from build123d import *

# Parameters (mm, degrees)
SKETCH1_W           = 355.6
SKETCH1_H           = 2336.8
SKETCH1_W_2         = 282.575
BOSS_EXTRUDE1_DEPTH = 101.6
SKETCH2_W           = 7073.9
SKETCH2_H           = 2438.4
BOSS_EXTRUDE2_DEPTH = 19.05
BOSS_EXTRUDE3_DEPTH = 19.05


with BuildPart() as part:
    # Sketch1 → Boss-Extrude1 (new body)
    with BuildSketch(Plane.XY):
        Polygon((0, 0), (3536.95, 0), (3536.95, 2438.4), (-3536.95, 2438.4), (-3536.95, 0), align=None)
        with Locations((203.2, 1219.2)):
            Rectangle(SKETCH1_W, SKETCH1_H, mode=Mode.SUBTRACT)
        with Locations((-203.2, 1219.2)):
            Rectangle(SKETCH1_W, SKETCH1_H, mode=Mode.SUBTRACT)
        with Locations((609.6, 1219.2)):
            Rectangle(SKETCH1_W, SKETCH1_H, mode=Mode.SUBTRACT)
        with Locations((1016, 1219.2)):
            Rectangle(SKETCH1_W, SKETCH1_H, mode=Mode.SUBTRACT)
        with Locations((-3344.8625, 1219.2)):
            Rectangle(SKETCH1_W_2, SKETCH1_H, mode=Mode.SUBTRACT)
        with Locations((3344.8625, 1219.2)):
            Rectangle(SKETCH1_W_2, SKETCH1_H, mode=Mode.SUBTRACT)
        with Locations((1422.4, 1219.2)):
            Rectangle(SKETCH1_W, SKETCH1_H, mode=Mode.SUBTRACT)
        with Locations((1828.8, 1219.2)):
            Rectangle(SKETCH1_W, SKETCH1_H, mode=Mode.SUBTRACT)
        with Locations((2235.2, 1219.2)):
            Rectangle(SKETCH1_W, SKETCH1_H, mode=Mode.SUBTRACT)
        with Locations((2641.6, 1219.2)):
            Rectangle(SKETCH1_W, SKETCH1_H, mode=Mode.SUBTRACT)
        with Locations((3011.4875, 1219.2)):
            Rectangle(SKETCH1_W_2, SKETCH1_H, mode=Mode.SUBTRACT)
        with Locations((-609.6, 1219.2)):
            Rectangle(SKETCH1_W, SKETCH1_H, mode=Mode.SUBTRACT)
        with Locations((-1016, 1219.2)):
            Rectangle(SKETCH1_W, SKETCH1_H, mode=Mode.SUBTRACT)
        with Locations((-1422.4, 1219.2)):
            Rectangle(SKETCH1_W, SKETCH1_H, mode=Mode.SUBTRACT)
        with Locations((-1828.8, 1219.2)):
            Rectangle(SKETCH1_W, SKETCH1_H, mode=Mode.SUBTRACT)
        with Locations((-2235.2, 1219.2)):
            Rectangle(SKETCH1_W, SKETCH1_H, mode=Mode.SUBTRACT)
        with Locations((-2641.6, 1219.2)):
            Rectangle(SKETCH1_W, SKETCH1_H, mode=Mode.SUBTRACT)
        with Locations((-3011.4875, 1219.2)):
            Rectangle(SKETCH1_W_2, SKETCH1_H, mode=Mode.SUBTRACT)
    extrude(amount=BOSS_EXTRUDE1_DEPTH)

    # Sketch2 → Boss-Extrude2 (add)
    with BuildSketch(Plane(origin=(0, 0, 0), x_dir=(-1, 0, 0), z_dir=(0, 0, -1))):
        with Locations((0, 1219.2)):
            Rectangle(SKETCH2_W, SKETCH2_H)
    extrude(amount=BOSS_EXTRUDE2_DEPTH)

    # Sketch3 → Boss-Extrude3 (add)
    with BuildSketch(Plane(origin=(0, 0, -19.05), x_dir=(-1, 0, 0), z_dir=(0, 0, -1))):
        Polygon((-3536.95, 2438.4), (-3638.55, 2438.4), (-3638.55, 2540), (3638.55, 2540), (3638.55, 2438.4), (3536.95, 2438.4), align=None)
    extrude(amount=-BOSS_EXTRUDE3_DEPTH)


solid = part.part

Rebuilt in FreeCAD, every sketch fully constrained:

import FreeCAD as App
import Part
import Sketcher
Q = App.Units.Quantity


def add_polygon(sketch, points):
    """Adds a closed chain of lines whose ends are joined by coincident constraints."""
    first, n = sketch.GeometryCount, len(points)
    for a, b in zip(points, points[1:] + points[:1]):
        sketch.addGeometry(Part.LineSegment(App.Vector(*a, 0), App.Vector(*b, 0)), False)
    for i in range(n):
        sketch.addConstraint(Sketcher.Constraint("Coincident", first + i, 2, first + (i + 1) % n, 1))

doc = App.newDocument("Part")
params = doc.addObject("Spreadsheet::Sheet", "Params")
for row, (alias, value) in enumerate([
    ("sketch1_width", "14 in"),
    ("sketch1_height", "96 in"),
    ("sketch1_height2", "92 in"),
    ("sketch1_width2", "278.5 in"),
    ("sketch1_width3", "11.125 in"),
    ("pad1_length", "4 in"),
    ("sketch2_height", "96 in"),
    ("sketch2_width", "278.5 in"),
    ("pad2_length", "0.75 in"),
    ("sketch3_height", "4 in"),
    ("sketch3_width", "286.5 in"),
    ("pad3_length", "0.75 in"),
], start=1):
    params.set(f"A{row}", alias)
    params.set(f"B{row}", "=" + value)
    params.setAlias(f"B{row}", alias)

body = doc.addObject("PartDesign::Body", "Body")

# Sketch on XY plane
sketch1 = body.newObject("Sketcher::SketchObject", "Sketch")
sketch1.AttachmentSupport = (doc.getObject("XY_Plane"), [""])
sketch1.MapMode = "FlatFace"
add_polygon(sketch1, [(3537, 0), (3537, 2438), (-3537, 2438), (-3537, 0)])  # lines 0-3
add_polygon(sketch1, [(-3204, 51), (-3486, 51), (-3486, 2388), (-3204, 2388)])  # lines 4-7
add_polygon(sketch1, [(-2870, 51), (-3153, 51), (-3153, 2388), (-2870, 2388)])  # lines 8-11
add_polygon(sketch1, [(-2464, 51), (-2819, 51), (-2819, 2388), (-2464, 2388)])  # lines 12-15
add_polygon(sketch1, [(-2057, 51), (-2413, 51), (-2413, 2388), (-2057, 2388)])  # lines 16-19
add_polygon(sketch1, [(-1651, 51), (-2007, 51), (-2007, 2388), (-1651, 2388)])  # lines 20-23
add_polygon(sketch1, [(-1245, 51), (-1600, 51), (-1600, 2388), (-1245, 2388)])  # lines 24-27
add_polygon(sketch1, [(-838, 51), (-1194, 51), (-1194, 2388), (-838, 2388)])  # lines 28-31
add_polygon(sketch1, [(-432, 51), (-787, 51), (-787, 2388), (-432, 2388)])  # lines 32-35
add_polygon(sketch1, [(-25, 51), (-381, 51), (-381, 2388), (-25, 2388)])  # lines 36-39
add_polygon(sketch1, [(381, 51), (25, 51), (25, 2388), (381, 2388)])  # lines 40-43
add_polygon(sketch1, [(787, 51), (432, 51), (432, 2388), (787, 2388)])  # lines 44-47
add_polygon(sketch1, [(1194, 51), (838, 51), (838, 2388), (1194, 2388)])  # lines 48-51
add_polygon(sketch1, [(1600, 51), (1245, 51), (1245, 2388), (1600, 2388)])  # lines 52-55
add_polygon(sketch1, [(2007, 51), (1651, 51), (1651, 2388), (2007, 2388)])  # lines 56-59
add_polygon(sketch1, [(2413, 51), (2057, 51), (2057, 2388), (2413, 2388)])  # lines 60-63
add_polygon(sketch1, [(2819, 51), (2464, 51), (2464, 2388), (2819, 2388)])  # lines 64-67
add_polygon(sketch1, [(3153, 51), (2870, 51), (2870, 2388), (3153, 2388)])  # lines 68-71
add_polygon(sketch1, [(3486, 51), (3204, 51), (3204, 2388), (3486, 2388)])  # lines 72-75
sketch1.addConstraint([
    Sketcher.Constraint("Vertical", 0),
    Sketcher.Constraint("Horizontal", 1),
    Sketcher.Constraint("Vertical", 2),
    Sketcher.Constraint("Horizontal", 3),
    Sketcher.Constraint("Horizontal", 4),
    Sketcher.Constraint("Vertical", 5),
    Sketcher.Constraint("Horizontal", 6),
    Sketcher.Constraint("Vertical", 7),
    Sketcher.Constraint("Horizontal", 8),
    Sketcher.Constraint("Vertical", 9),
    Sketcher.Constraint("Horizontal", 10),
    Sketcher.Constraint("Vertical", 11),
    Sketcher.Constraint("Horizontal", 12),
    Sketcher.Constraint("Vertical", 13),
    Sketcher.Constraint("Horizontal", 14),
    Sketcher.Constraint("Vertical", 15),
    Sketcher.Constraint("Horizontal", 16),
    Sketcher.Constraint("Vertical", 17),
    Sketcher.Constraint("Horizontal", 18),
    Sketcher.Constraint("Vertical", 19),
    Sketcher.Constraint("Horizontal", 20),
    Sketcher.Constraint("Vertical", 21),
    Sketcher.Constraint("Horizontal", 22),
    Sketcher.Constraint("Vertical", 23),
    Sketcher.Constraint("Horizontal", 24),
    Sketcher.Constraint("Vertical", 25),
    Sketcher.Constraint("Horizontal", 26),
    Sketcher.Constraint("Vertical", 27),
    Sketcher.Constraint("Horizontal", 28),
    Sketcher.Constraint("Vertical", 29),
    Sketcher.Constraint("Horizontal", 30),
    Sketcher.Constraint("Vertical", 31),
    Sketcher.Constraint("Horizontal", 32),
    Sketcher.Constraint("Vertical", 33),
    Sketcher.Constraint("Horizontal", 34),
    Sketcher.Constraint("Vertical", 35),
    Sketcher.Constraint("Horizontal", 36),
    Sketcher.Constraint("Vertical", 37),
    Sketcher.Constraint("Horizontal", 38),
    Sketcher.Constraint("Vertical", 39),
    Sketcher.Constraint("Horizontal", 40),
    Sketcher.Constraint("Vertical", 41),
    Sketcher.Constraint("Horizontal", 42),
    Sketcher.Constraint("Vertical", 43),
    Sketcher.Constraint("Horizontal", 44),
    Sketcher.Constraint("Vertical", 45),
    Sketcher.Constraint("Horizontal", 46),
    Sketcher.Constraint("Vertical", 47),
    Sketcher.Constraint("Horizontal", 48),
    Sketcher.Constraint("Vertical", 49),
    Sketcher.Constraint("Horizontal", 50),
    Sketcher.Constraint("Vertical", 51),
    Sketcher.Constraint("Horizontal", 52),
    Sketcher.Constraint("Vertical", 53),
    Sketcher.Constraint("Horizontal", 54),
    Sketcher.Constraint("Vertical", 55),
    Sketcher.Constraint("Horizontal", 56),
    Sketcher.Constraint("Vertical", 57),
    Sketcher.Constraint("Horizontal", 58),
    Sketcher.Constraint("Vertical", 59),
    Sketcher.Constraint("Horizontal", 60),
    Sketcher.Constraint("Vertical", 61),
    Sketcher.Constraint("Horizontal", 62),
    Sketcher.Constraint("Vertical", 63),
    Sketcher.Constraint("Horizontal", 64),
    Sketcher.Constraint("Vertical", 65),
    Sketcher.Constraint("Horizontal", 66),
    Sketcher.Constraint("Vertical", 67),
    Sketcher.Constraint("Horizontal", 68),
    Sketcher.Constraint("Vertical", 69),
    Sketcher.Constraint("Horizontal", 70),
    Sketcher.Constraint("Vertical", 71),
    Sketcher.Constraint("Horizontal", 72),
    Sketcher.Constraint("Vertical", 73),
    Sketcher.Constraint("Horizontal", 74),
    Sketcher.Constraint("Vertical", 75),
    Sketcher.Constraint("Symmetric", 2, 2, 3, 2, -1, 1),
    Sketcher.Constraint("Symmetric", 39, 2, 40, 2, -2),
    Sketcher.Constraint("Symmetric", 37, 2, 42, 2, -2),
    Sketcher.Constraint("Symmetric", 35, 2, 44, 2, -2),
    Sketcher.Constraint("Symmetric", 33, 2, 46, 2, -2),
    Sketcher.Constraint("Symmetric", 31, 2, 48, 2, -2),
    Sketcher.Constraint("Symmetric", 29, 2, 50, 2, -2),
    Sketcher.Constraint("Symmetric", 27, 2, 52, 2, -2),
    Sketcher.Constraint("Symmetric", 25, 2, 54, 2, -2),
    Sketcher.Constraint("Symmetric", 23, 2, 56, 2, -2),
    Sketcher.Constraint("Symmetric", 21, 2, 58, 2, -2),
    Sketcher.Constraint("Symmetric", 19, 2, 60, 2, -2),
    Sketcher.Constraint("Symmetric", 17, 2, 62, 2, -2),
    Sketcher.Constraint("Symmetric", 15, 2, 64, 2, -2),
    Sketcher.Constraint("Symmetric", 13, 2, 66, 2, -2),
    Sketcher.Constraint("Symmetric", 11, 2, 68, 2, -2),
    Sketcher.Constraint("Symmetric", 9, 2, 70, 2, -2),
    Sketcher.Constraint("Symmetric", 7, 2, 72, 2, -2),
    Sketcher.Constraint("Symmetric", 5, 2, 74, 2, -2),
    Sketcher.Constraint("Horizontal", 7, 2, 8, 2),
    Sketcher.Constraint("Horizontal", 6, 2, 9, 2),
    Sketcher.Constraint("Horizontal", 11, 2, 12, 2),
    Sketcher.Constraint("Horizontal", 10, 2, 13, 2),
    Sketcher.Constraint("Horizontal", 15, 2, 16, 2),
    Sketcher.Constraint("Horizontal", 14, 2, 17, 2),
    Sketcher.Constraint("Horizontal", 19, 2, 20, 2),
    Sketcher.Constraint("Horizontal", 18, 2, 21, 2),
    Sketcher.Constraint("Horizontal", 23, 2, 24, 2),
    Sketcher.Constraint("Horizontal", 22, 2, 25, 2),
    Sketcher.Constraint("Horizontal", 27, 2, 28, 2),
    Sketcher.Constraint("Horizontal", 26, 2, 29, 2),
    Sketcher.Constraint("Horizontal", 31, 2, 32, 2),
    Sketcher.Constraint("Horizontal", 30, 2, 33, 2),
    Sketcher.Constraint("Horizontal", 35, 2, 36, 2),
    Sketcher.Constraint("Horizontal", 34, 2, 37, 2),
    Sketcher.Constraint("Equal", 6, 8),
    Sketcher.Constraint("Equal", 14, 16),
    Sketcher.Constraint("Equal", 18, 20),
    Sketcher.Constraint("Equal", 22, 24),
    Sketcher.Constraint("Equal", 26, 28),
    Sketcher.Constraint("Equal", 30, 32),
    Sketcher.Constraint("Equal", 34, 36),
    Sketcher.Constraint("DistanceX", 12, 2, 12, 1, Q("14 in")),
    Sketcher.Constraint("DistanceY", 0, 1, 0, 2, Q("96 in")),
    Sketcher.Constraint("DistanceY", 5, 1, 5, 2, Q("92 in")),
    Sketcher.Constraint("DistanceX", 1, 2, 1, 1, Q("278.5 in")),
    Sketcher.Constraint("DistanceY", -1, 1, 4, 2, Q("2 in")),
    Sketcher.Constraint("DistanceX", 10, 2, -1, 1, Q("113 in")),
    Sketcher.Constraint("DistanceX", 12, 2, -1, 1, Q("111 in")),
    Sketcher.Constraint("DistanceX", 16, 2, -1, 1, Q("95 in")),
    Sketcher.Constraint("DistanceX", 20, 2, -1, 1, Q("79 in")),
    Sketcher.Constraint("DistanceX", 24, 2, -1, 1, Q("63 in")),
    Sketcher.Constraint("DistanceX", 28, 2, -1, 1, Q("47 in")),
    Sketcher.Constraint("DistanceX", 32, 2, -1, 1, Q("31 in")),
    Sketcher.Constraint("DistanceX", 36, 2, -1, 1, Q("15 in")),
    Sketcher.Constraint("DistanceX", 4, 2, 4, 1, Q("11.125 in")),
    Sketcher.Constraint("DistanceX", 4, 2, -1, 1, Q("137.25 in")),
])
sketch1.setExpression("Constraints[194]", "Params.sketch1_width")
sketch1.setExpression("Constraints[195]", "Params.sketch1_height")
sketch1.setExpression("Constraints[196]", "Params.sketch1_height2")
sketch1.setExpression("Constraints[197]", "Params.sketch1_width2")
sketch1.setExpression("Constraints[207]", "Params.sketch1_width3")
pad1 = body.newObject("PartDesign::Pad", "Pad")
pad1.Profile = sketch1
pad1.setExpression("Length", "Params.pad1_length")

# Sketch on XY plane
sketch2 = body.newObject("Sketcher::SketchObject", "Sketch001")
sketch2.AttachmentSupport = (doc.getObject("XY_Plane"), [""])
sketch2.MapMode = "FlatFace"
add_polygon(sketch2, [(3537, 2438), (3537, 0), (-3537, 0), (-3537, 2438)])  # lines 0-3
sketch2.addConstraint([
    Sketcher.Constraint("Vertical", 0),
    Sketcher.Constraint("Horizontal", 1),
    Sketcher.Constraint("Vertical", 2),
    Sketcher.Constraint("Horizontal", 3),
    Sketcher.Constraint("Symmetric", 0, 2, 1, 2, -1, 1),
    Sketcher.Constraint("DistanceY", 0, 2, 0, 1, Q("96 in")),
    Sketcher.Constraint("DistanceX", 1, 2, 1, 1, Q("278.5 in")),
])
sketch2.setExpression("Constraints[9]", "Params.sketch2_height")
sketch2.setExpression("Constraints[10]", "Params.sketch2_width")
pad2 = body.newObject("PartDesign::Pad", "Pad001")
pad2.Profile = sketch2
pad2.setExpression("Length", "Params.pad2_length")
pad2.Reversed = True

# Sketch on XY plane
sketch3 = body.newObject("Sketcher::SketchObject", "Sketch002")
sketch3.AttachmentSupport = (doc.getObject("XY_Plane"), [""])
sketch3.MapMode = "FlatFace"
sketch3.AttachmentOffset = App.Placement(App.Vector(0, 0, -0.75 * 25.4), App.Rotation())
add_polygon(sketch3, [(3639, 2438), (-3639, 2438), (-3639, 2540), (3639, 2540)])  # lines 0-3
sketch3.addConstraint([
    Sketcher.Constraint("Horizontal", 0),
    Sketcher.Constraint("Vertical", 1),
    Sketcher.Constraint("Horizontal", 2),
    Sketcher.Constraint("Vertical", 3),
    Sketcher.Constraint("DistanceY", 1, 1, 1, 2, Q("4 in")),
    Sketcher.Constraint("DistanceX", 0, 2, 0, 1, Q("286.5 in")),
    Sketcher.Constraint("DistanceY", -1, 1, 0, 2, Q("96 in")),
    Sketcher.Constraint("DistanceX", 0, 2, -1, 1, Q("143.25 in")),
])
sketch3.setExpression("Constraints[8]", "Params.sketch3_height")
sketch3.setExpression("Constraints[9]", "Params.sketch3_width")
pad3 = body.newObject("PartDesign::Pad", "Pad002")
pad3.Profile = sketch3
pad3.setExpression("Length", "Params.pad3_length")

doc.recompute()
